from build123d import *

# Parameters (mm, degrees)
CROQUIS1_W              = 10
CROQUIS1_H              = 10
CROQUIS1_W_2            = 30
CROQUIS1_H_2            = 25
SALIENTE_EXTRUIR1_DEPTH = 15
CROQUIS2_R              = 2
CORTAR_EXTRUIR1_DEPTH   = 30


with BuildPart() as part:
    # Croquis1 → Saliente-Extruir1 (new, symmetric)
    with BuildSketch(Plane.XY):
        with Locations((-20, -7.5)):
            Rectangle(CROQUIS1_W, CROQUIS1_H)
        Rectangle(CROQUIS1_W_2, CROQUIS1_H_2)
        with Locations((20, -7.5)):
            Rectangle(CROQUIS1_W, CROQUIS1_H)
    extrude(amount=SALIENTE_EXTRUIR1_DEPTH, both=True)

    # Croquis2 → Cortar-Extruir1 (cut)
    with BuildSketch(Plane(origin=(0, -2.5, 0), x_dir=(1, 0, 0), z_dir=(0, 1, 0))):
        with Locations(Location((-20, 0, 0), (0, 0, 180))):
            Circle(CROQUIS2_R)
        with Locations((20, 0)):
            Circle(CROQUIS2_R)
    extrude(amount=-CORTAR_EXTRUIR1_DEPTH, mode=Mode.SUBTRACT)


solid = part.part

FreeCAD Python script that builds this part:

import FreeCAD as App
import Part
import Sketcher
from FreeCAD import Vector


def add_polygon(sketch, points):
    """Adds a closed chain of lines whose ends are joined by coincident constraints."""
    first, n = sketch.GeometryCount, len(points)
    for a, b in zip(points, points[1:] + points[:1]):
        sketch.addGeometry(Part.LineSegment(App.Vector(*a, 0), App.Vector(*b, 0)), False)
    for i in range(n):
        sketch.addConstraint(Sketcher.Constraint("Coincident", first + i, 2, first + (i + 1) % n, 1))

doc = App.newDocument("Part")
body = doc.addObject("PartDesign::Body", "Body")

# Sketch on XY plane
sketch1 = doc.addObject("Sketcher::SketchObject", "Sketch")
body.addObject(sketch1)
sketch1.AttachmentSupport = (doc.XY_Plane, [""])
sketch1.MapMode = "FlatFace"
add_polygon(sketch1, [(-25, -2), (-25, -12), (25, -12), (25, -2), (15, -2), (15, 12), (-15, 12), (-15, -2)])  # lines 0-7
sketch1.addConstraint(Sketcher.Constraint("Vertical", 0))
sketch1.addConstraint(Sketcher.Constraint("Horizontal", 1))
sketch1.addConstraint(Sketcher.Constraint("Vertical", 2))
sketch1.addConstraint(Sketcher.Constraint("Horizontal", 3))
sketch1.addConstraint(Sketcher.Constraint("Vertical", 4))
sketch1.addConstraint(Sketcher.Constraint("Horizontal", 5))
sketch1.addConstraint(Sketcher.Constraint("Vertical", 6))
sketch1.addConstraint(Sketcher.Constraint("Horizontal", 7))
sketch1.addConstraint(Sketcher.Constraint("Symmetric", 3, 2, 6, 2, -2))
sketch1.addConstraint(Sketcher.Constraint("Equal", 3, 7))
sketch1.addConstraint(Sketcher.Constraint("Equal", 7, 0))
sketch1.addConstraint(Sketcher.Constraint("DistanceX", 1, 1, 1, 2, 50.0))
sketch1.addConstraint(Sketcher.Constraint("DistanceX", 3, 2, 3, 1, 10.0))
sketch1.addConstraint(Sketcher.Constraint("DistanceY", 4, 1, 4, 2, 15.0))
sketch1.addConstraint(Sketcher.Constraint("DistanceY", 0, 2, -1, 1, 12.5))
pad1 = doc.addObject("PartDesign::Pad", "Pad")
body.addObject(pad1)
pad1.Profile = sketch1
pad1.Length = 30
pad1.Midplane = True

# Sketch on XZ plane
sketch2 = doc.addObject("Sketcher::SketchObject", "Sketch001")
body.addObject(sketch2)
sketch2.AttachmentSupport = (doc.XZ_Plane, [""])
sketch2.MapMode = "FlatFace"
sketch2.AttachmentOffset = App.Placement(Vector(0, 0, 2.5), App.Rotation())
sketch2.addGeometry(Part.Circle(Vector(-20, 0, 0), Vector(0, 0, 1), 2), False)
sketch2.addGeometry(Part.Circle(Vector(20, 0, 0), Vector(0, 0, 1), 2), False)
sketch2.addConstraint(Sketcher.Constraint("Equal", 0, 1))
sketch2.addConstraint(Sketcher.Constraint("Symmetric", 0, 3, 1, 3, -1, 1))
sketch2.addConstraint(Sketcher.Constraint("PointOnObject", 0, 3, -1))
sketch2.addConstraint(Sketcher.Constraint("Diameter", 0, 4.0))
sketch2.addConstraint(Sketcher.Constraint("DistanceX", 0, 3, -1, 1, 20.0))
pocket1 = doc.addObject("PartDesign::Pocket", "Pocket")
body.addObject(pocket1)
pocket1.Profile = sketch2
pocket1.Length = 30
pocket1.Reversed = True

doc.recompute()
